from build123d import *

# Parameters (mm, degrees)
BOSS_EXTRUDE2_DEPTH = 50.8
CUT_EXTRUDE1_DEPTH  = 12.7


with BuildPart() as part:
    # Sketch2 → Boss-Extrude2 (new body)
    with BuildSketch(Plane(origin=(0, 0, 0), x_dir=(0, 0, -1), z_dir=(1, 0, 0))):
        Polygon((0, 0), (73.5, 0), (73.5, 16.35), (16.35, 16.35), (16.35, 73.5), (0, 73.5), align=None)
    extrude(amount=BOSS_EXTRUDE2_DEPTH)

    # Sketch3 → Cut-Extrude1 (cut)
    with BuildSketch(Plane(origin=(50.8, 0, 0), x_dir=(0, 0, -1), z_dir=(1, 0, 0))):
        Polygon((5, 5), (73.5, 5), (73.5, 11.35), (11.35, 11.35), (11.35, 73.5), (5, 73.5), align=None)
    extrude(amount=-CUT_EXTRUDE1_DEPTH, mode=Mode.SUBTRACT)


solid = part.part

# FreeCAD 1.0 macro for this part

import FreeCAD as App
import Part
import Sketcher
Q = App.Units.Quantity

doc = App.newDocument("Part")
body = doc.addObject("PartDesign::Body", "Body")

# Sketch on YZ plane
sketch1 = doc.addObject("Sketcher::SketchObject", "Sketch")
body.addObject(sketch1)
sketch1.AttachmentSupport = (doc.YZ_Plane, [""])
sketch1.MapMode = "FlatFace"
sketch1.addGeometry([
    Part.LineSegment(App.Vector(0, 0, 0), App.Vector(0, -73.5, 0)),  # 0
    Part.LineSegment(App.Vector(0, -73.5, 0), App.Vector(16.35, -73.5, 0)),  # 1
    Part.LineSegment(App.Vector(16.35, -73.5, 0), App.Vector(16.35, -16.35, 0)),  # 2
    Part.LineSegment(App.Vector(16.35, -16.35, 0), App.Vector(73.5, -16.35, 0)),  # 3
    Part.LineSegment(App.Vector(73.5, -16.35, 0), App.Vector(73.5, 0, 0)),  # 4
    Part.LineSegment(App.Vector(73.5, 0, 0), App.Vector(0, 0, 0)),  # 5
], False)
sketch1.addConstraint([
    Sketcher.Constraint("Coincident", 0, 2, 1, 1),
    Sketcher.Constraint("Coincident", 1, 2, 2, 1),
    Sketcher.Constraint("Coincident", 2, 2, 3, 1),
    Sketcher.Constraint("Coincident", 3, 2, 4, 1),
    Sketcher.Constraint("Coincident", 4, 2, 5, 1),
    Sketcher.Constraint("Coincident", 5, 2, 0, 1),
    Sketcher.Constraint("Vertical", 0),
    Sketcher.Constraint("Horizontal", 1),
    Sketcher.Constraint("Vertical", 2),
    Sketcher.Constraint("Horizontal", 3),
    Sketcher.Constraint("Vertical", 4),
    Sketcher.Constraint("Horizontal", 5),
    Sketcher.Constraint("Coincident", 5, 2, -1, 1),
    Sketcher.Constraint("Equal", 5, 0),
    Sketcher.Constraint("Equal", 3, 2),
    Sketcher.Constraint("DistanceX", 3, 1, 3, 2, Q("2.25 in")),
    Sketcher.Constraint("DistanceX", 1, 1, 1, 2, 16.35),
])
pad1 = doc.addObject("PartDesign::Pad", "Pad")
body.addObject(pad1)
pad1.Profile = sketch1
pad1.Length = Q("2 in")

# Sketch on YZ plane
sketch2 = doc.addObject("Sketcher::SketchObject", "Sketch001")
body.addObject(sketch2)
sketch2.AttachmentSupport = (doc.YZ_Plane, [""])
sketch2.MapMode = "FlatFace"
sketch2.AttachmentOffset = App.Placement(App.Vector(0, 0, 2 * 25.4), App.Rotation())
sketch2.addGeometry([
    Part.LineSegment(App.Vector(5, -5, 0), App.Vector(5, -73.5, 0)),  # 0
    Part.LineSegment(App.Vector(5, -73.5, 0), App.Vector(11.35, -73.5, 0)),  # 1
    Part.LineSegment(App.Vector(11.35, -73.5, 0), App.Vector(11.35, -11.35, 0)),  # 2
    Part.LineSegment(App.Vector(11.35, -11.35, 0), App.Vector(73.5, -11.35, 0)),  # 3
    Part.LineSegment(App.Vector(73.5, -11.35, 0), App.Vector(73.5, -5, 0)),  # 4
    Part.LineSegment(App.Vector(73.5, -5, 0), App.Vector(5, -5, 0)),  # 5
], False)
sketch2.addConstraint([
    Sketcher.Constraint("Coincident", 0, 2, 1, 1),
    Sketcher.Constraint("Coincident", 1, 2, 2, 1),
    Sketcher.Constraint("Coincident", 2, 2, 3, 1),
    Sketcher.Constraint("Coincident", 3, 2, 4, 1),
    Sketcher.Constraint("Coincident", 4, 2, 5, 1),
    Sketcher.Constraint("Coincident", 5, 2, 0, 1),
    Sketcher.Constraint("Vertical", 0),
    Sketcher.Constraint("Horizontal", 1),
    Sketcher.Constraint("Vertical", 2),
    Sketcher.Constraint("Horizontal", 3),
    Sketcher.Constraint("Vertical", 4),
    Sketcher.Constraint("Horizontal", 5),
    Sketcher.Constraint("Equal", 5, 0),
    Sketcher.Constraint("Equal", 3, 2),
    Sketcher.Constraint("DistanceX", 1, 1, 1, 2, Q("0.25 in")),
    Sketcher.Constraint("DistanceX", 3, 1, 3, 2, 62.15),
    Sketcher.Constraint("DistanceX", -1, 1, 0, 2, 5.0),
    Sketcher.Constraint("DistanceY", 0, 2, -1, 1, 73.5),
])
pocket1 = doc.addObject("PartDesign::Pocket", "Pocket")
body.addObject(pocket1)
pocket1.Profile = sketch2
pocket1.Length = Q("0.5 in")

doc.recompute()
